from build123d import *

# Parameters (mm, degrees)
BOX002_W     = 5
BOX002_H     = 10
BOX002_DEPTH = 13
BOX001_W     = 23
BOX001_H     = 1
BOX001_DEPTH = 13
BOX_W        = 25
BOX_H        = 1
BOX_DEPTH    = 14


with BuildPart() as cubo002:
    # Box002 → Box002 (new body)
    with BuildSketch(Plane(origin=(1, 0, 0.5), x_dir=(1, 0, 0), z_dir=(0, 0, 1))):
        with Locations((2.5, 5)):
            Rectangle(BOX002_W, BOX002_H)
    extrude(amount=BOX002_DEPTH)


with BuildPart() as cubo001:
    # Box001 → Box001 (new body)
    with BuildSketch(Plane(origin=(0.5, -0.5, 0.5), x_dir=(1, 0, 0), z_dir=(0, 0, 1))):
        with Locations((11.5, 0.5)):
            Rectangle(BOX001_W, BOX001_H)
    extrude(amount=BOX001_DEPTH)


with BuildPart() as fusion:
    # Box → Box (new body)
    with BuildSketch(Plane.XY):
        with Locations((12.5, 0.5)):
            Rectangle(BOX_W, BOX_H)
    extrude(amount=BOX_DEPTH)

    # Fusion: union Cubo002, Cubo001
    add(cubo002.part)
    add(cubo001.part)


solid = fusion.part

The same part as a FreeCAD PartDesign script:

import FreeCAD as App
import Part
import Sketcher

V = App.Vector


def add_polygon(sketch, points):
    """Adds a closed chain of lines whose ends are joined by coincident constraints."""
    first, n = sketch.GeometryCount, len(points)
    for a, b in zip(points, points[1:] + points[:1]):
        sketch.addGeometry(Part.LineSegment(App.Vector(*a, 0), App.Vector(*b, 0)), False)
    for i in range(n):
        sketch.addConstraint(Sketcher.Constraint("Coincident", first + i, 2, first + (i + 1) % n, 1))

doc = App.newDocument("Part")
body = doc.addObject("PartDesign::Body", "Body")

sketch1 = doc.addObject("Sketcher::SketchObject", "Sketch")
body.addObject(sketch1)
sketch1.AttachmentSupport = (doc.XY_Plane, [""])
sketch1.MapMode = "FlatFace"
sketch1.AttachmentOffset = App.Placement(V(0, 0, 0.5), App.Rotation())
add_polygon(sketch1, [(1, 10), (1, 0), (6, 0), (6, 10)])
sketch1.addConstraint(Sketcher.Constraint("Vertical", 0))
sketch1.addConstraint(Sketcher.Constraint("Horizontal", 1))
sketch1.addConstraint(Sketcher.Constraint("Vertical", 2))
sketch1.addConstraint(Sketcher.Constraint("Horizontal", 3))
sketch1.addConstraint(Sketcher.Constraint("PointOnObject", 0, 2, -1))
sketch1.addConstraint(Sketcher.Constraint("DistanceX", 1, 1, 1, 2, 5.0))
sketch1.addConstraint(Sketcher.Constraint("DistanceY", 0, 2, 0, 1, 10.0))
sketch1.addConstraint(Sketcher.Constraint("DistanceX", -1, 1, 0, 2, 1.0))
pad1 = doc.addObject("PartDesign::Pad", "Pad")
body.addObject(pad1)
pad1.Profile = sketch1
pad1.Length = 13
body2 = doc.addObject("PartDesign::Body", "Body001")

sketch2 = doc.addObject("Sketcher::SketchObject", "Sketch001")
body2.addObject(sketch2)
sketch2.AttachmentSupport = (doc.getObject("XY_Plane001"), [""])
sketch2.MapMode = "FlatFace"
sketch2.AttachmentOffset = App.Placement(V(0, 0, 0.5), App.Rotation())
add_polygon(sketch2, [(0.5, 0.5), (0.5, -0.5), (23.5, -0.5), (23.5, 0.5)])
sketch2.addConstraint(Sketcher.Constraint("Vertical", 0))
sketch2.addConstraint(Sketcher.Constraint("Horizontal", 1))
sketch2.addConstraint(Sketcher.Constraint("Vertical", 2))
sketch2.addConstraint(Sketcher.Constraint("Horizontal", 3))
sketch2.addConstraint(Sketcher.Constraint("DistanceX", 1, 1, 1, 2, 23.0))
sketch2.addConstraint(Sketcher.Constraint("DistanceY", 0, 2, 0, 1, 1.0))
sketch2.addConstraint(Sketcher.Constraint("DistanceX", -1, 1, 0, 2, 0.5))
sketch2.addConstraint(Sketcher.Constraint("DistanceY", 0, 2, -1, 1, 0.5))
pad2 = doc.addObject("PartDesign::Pad", "Pad001")
body2.addObject(pad2)
pad2.Profile = sketch2
pad2.Length = 13
body3 = doc.addObject("PartDesign::Body", "Body002")

sketch3 = doc.addObject("Sketcher::SketchObject", "Sketch002")
body3.addObject(sketch3)
sketch3.AttachmentSupport = (doc.getObject("XY_Plane002"), [""])
sketch3.MapMode = "FlatFace"
add_polygon(sketch3, [(0, 1), (0, 0), (25, 0), (25, 1)])
sketch3.addConstraint(Sketcher.Constraint("Vertical", 0))
sketch3.addConstraint(Sketcher.Constraint("Horizontal", 1))
sketch3.addConstraint(Sketcher.Constraint("Vertical", 2))
sketch3.addConstraint(Sketcher.Constraint("Horizontal", 3))
sketch3.addConstraint(Sketcher.Constraint("Coincident", 0, 2, -1, 1))
sketch3.addConstraint(Sketcher.Constraint("DistanceX", 1, 1, 1, 2, 25.0))
sketch3.addConstraint(Sketcher.Constraint("DistanceY", 0, 2, 0, 1, 1.0))
pad3 = doc.addObject("PartDesign::Pad", "Pad002")
body3.addObject(pad3)
pad3.Profile = sketch3
pad3.Length = 14
doc.recompute()

boolean = doc.addObject("PartDesign::Boolean", "Boolean")
body3.addObject(boolean)
boolean.Type = "Fuse"
boolean.addObjects([body])
doc.recompute()

boolean2 = doc.addObject("PartDesign::Boolean", "Boolean001")
body3.addObject(boolean2)
boolean2.Type = "Fuse"
boolean2.addObjects([body2])

doc.recompute()
